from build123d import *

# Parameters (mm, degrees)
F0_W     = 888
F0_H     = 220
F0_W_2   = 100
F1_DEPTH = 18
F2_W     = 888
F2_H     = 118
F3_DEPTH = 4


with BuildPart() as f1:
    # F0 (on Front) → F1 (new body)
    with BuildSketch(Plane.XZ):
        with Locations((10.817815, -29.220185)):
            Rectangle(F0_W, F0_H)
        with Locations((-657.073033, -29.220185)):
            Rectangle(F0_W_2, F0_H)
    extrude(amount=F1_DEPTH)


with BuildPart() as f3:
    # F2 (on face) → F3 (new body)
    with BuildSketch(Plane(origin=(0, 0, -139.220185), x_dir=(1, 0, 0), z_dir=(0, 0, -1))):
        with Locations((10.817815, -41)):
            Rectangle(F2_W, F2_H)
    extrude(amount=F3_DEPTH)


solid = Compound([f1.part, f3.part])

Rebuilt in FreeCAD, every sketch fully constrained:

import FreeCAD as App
import Part
import Sketcher
Q = App.Units.Quantity


def add_polygon(sketch, points):
    """Adds a closed chain of lines whose ends are joined by coincident constraints."""
    first, n = sketch.GeometryCount, len(points)
    for a, b in zip(points, points[1:] + points[:1]):
        sketch.addGeometry(Part.LineSegment(App.Vector(*a, 0), App.Vector(*b, 0)), False)
    for i in range(n):
        sketch.addConstraint(Sketcher.Constraint("Coincident", first + i, 2, first + (i + 1) % n, 1))

doc = App.newDocument("Part")
body = doc.addObject("PartDesign::Body", "Body")
body.AllowCompound = True

sketch1 = doc.addObject("Sketcher::SketchObject", "Sketch")
body.addObject(sketch1)
sketch1.AttachmentSupport = (doc.XZ_Plane, [""])
sketch1.MapMode = "FlatFace"
add_polygon(sketch1, [(-433, 81), (-433, -139), (455, -139), (455, 81)])
add_polygon(sketch1, [(-707, 81), (-707, -139), (-607, -139), (-607, 81)])
sketch1.addConstraint(Sketcher.Constraint("Vertical", 0))
sketch1.addConstraint(Sketcher.Constraint("Horizontal", 1))
sketch1.addConstraint(Sketcher.Constraint("Vertical", 2))
sketch1.addConstraint(Sketcher.Constraint("Horizontal", 3))
sketch1.addConstraint(Sketcher.Constraint("Vertical", 4))
sketch1.addConstraint(Sketcher.Constraint("Horizontal", 5))
sketch1.addConstraint(Sketcher.Constraint("Vertical", 6))
sketch1.addConstraint(Sketcher.Constraint("Horizontal", 7))
sketch1.addConstraint(Sketcher.Constraint("Horizontal", 1, 2, 4, 2))
sketch1.addConstraint(Sketcher.Constraint("Horizontal", 3, 2, 6, 2))
sketch1.addConstraint(Sketcher.Constraint("DistanceX", 1, 1, 1, 2, Q("888 mm")))
sketch1.addConstraint(Sketcher.Constraint("DistanceX", 5, 1, 5, 2, Q("100 mm")))
sketch1.addConstraint(Sketcher.Constraint("DistanceY", 0, 2, 0, 1, Q("220 mm")))
sketch1.addConstraint(Sketcher.Constraint("DistanceX", 4, 2, 0, 2, Q("273.890848 mm")))
sketch1.addConstraint(Sketcher.Constraint("DistanceX", 0, 2, -1, 1, Q("433.182185 mm")))
sketch1.addConstraint(Sketcher.Constraint("DistanceY", 0, 2, -1, 1, Q("139.220185 mm")))
pad1 = doc.addObject("PartDesign::Pad", "Pad")
body.addObject(pad1)
pad1.Profile = sketch1
pad1.Length = 18
body2 = doc.addObject("PartDesign::Body", "Body001")

sketch2 = doc.addObject("Sketcher::SketchObject", "Sketch001")
body2.addObject(sketch2)
sketch2.AttachmentSupport = (doc.getObject("XY_Plane001"), [""])
sketch2.MapMode = "FlatFace"
sketch2.AttachmentOffset = App.Placement(App.Vector(0, 0, -139.220185), App.Rotation())
add_polygon(sketch2, [(-433, -18), (-433, 100), (455, 100), (455, -18)])
sketch2.addConstraint(Sketcher.Constraint("Vertical", 0))
sketch2.addConstraint(Sketcher.Constraint("Horizontal", 1))
sketch2.addConstraint(Sketcher.Constraint("Vertical", 2))
sketch2.addConstraint(Sketcher.Constraint("Horizontal", 3))
sketch2.addConstraint(Sketcher.Constraint("DistanceX", 1, 1, 1, 2, Q("888 mm")))
sketch2.addConstraint(Sketcher.Constraint("DistanceY", 0, 1, 0, 2, Q("118 mm")))
sketch2.addConstraint(Sketcher.Constraint("DistanceY", -1, 1, 0, 2, Q("100 mm")))
sketch2.addConstraint(Sketcher.Constraint("DistanceX", 0, 2, -1, 1, Q("433.182185 mm")))
pad2 = doc.addObject("PartDesign::Pad", "Pad001")
body2.addObject(pad2)
pad2.Profile = sketch2
pad2.Length = 4
pad2.Reversed = True

doc.recompute()
